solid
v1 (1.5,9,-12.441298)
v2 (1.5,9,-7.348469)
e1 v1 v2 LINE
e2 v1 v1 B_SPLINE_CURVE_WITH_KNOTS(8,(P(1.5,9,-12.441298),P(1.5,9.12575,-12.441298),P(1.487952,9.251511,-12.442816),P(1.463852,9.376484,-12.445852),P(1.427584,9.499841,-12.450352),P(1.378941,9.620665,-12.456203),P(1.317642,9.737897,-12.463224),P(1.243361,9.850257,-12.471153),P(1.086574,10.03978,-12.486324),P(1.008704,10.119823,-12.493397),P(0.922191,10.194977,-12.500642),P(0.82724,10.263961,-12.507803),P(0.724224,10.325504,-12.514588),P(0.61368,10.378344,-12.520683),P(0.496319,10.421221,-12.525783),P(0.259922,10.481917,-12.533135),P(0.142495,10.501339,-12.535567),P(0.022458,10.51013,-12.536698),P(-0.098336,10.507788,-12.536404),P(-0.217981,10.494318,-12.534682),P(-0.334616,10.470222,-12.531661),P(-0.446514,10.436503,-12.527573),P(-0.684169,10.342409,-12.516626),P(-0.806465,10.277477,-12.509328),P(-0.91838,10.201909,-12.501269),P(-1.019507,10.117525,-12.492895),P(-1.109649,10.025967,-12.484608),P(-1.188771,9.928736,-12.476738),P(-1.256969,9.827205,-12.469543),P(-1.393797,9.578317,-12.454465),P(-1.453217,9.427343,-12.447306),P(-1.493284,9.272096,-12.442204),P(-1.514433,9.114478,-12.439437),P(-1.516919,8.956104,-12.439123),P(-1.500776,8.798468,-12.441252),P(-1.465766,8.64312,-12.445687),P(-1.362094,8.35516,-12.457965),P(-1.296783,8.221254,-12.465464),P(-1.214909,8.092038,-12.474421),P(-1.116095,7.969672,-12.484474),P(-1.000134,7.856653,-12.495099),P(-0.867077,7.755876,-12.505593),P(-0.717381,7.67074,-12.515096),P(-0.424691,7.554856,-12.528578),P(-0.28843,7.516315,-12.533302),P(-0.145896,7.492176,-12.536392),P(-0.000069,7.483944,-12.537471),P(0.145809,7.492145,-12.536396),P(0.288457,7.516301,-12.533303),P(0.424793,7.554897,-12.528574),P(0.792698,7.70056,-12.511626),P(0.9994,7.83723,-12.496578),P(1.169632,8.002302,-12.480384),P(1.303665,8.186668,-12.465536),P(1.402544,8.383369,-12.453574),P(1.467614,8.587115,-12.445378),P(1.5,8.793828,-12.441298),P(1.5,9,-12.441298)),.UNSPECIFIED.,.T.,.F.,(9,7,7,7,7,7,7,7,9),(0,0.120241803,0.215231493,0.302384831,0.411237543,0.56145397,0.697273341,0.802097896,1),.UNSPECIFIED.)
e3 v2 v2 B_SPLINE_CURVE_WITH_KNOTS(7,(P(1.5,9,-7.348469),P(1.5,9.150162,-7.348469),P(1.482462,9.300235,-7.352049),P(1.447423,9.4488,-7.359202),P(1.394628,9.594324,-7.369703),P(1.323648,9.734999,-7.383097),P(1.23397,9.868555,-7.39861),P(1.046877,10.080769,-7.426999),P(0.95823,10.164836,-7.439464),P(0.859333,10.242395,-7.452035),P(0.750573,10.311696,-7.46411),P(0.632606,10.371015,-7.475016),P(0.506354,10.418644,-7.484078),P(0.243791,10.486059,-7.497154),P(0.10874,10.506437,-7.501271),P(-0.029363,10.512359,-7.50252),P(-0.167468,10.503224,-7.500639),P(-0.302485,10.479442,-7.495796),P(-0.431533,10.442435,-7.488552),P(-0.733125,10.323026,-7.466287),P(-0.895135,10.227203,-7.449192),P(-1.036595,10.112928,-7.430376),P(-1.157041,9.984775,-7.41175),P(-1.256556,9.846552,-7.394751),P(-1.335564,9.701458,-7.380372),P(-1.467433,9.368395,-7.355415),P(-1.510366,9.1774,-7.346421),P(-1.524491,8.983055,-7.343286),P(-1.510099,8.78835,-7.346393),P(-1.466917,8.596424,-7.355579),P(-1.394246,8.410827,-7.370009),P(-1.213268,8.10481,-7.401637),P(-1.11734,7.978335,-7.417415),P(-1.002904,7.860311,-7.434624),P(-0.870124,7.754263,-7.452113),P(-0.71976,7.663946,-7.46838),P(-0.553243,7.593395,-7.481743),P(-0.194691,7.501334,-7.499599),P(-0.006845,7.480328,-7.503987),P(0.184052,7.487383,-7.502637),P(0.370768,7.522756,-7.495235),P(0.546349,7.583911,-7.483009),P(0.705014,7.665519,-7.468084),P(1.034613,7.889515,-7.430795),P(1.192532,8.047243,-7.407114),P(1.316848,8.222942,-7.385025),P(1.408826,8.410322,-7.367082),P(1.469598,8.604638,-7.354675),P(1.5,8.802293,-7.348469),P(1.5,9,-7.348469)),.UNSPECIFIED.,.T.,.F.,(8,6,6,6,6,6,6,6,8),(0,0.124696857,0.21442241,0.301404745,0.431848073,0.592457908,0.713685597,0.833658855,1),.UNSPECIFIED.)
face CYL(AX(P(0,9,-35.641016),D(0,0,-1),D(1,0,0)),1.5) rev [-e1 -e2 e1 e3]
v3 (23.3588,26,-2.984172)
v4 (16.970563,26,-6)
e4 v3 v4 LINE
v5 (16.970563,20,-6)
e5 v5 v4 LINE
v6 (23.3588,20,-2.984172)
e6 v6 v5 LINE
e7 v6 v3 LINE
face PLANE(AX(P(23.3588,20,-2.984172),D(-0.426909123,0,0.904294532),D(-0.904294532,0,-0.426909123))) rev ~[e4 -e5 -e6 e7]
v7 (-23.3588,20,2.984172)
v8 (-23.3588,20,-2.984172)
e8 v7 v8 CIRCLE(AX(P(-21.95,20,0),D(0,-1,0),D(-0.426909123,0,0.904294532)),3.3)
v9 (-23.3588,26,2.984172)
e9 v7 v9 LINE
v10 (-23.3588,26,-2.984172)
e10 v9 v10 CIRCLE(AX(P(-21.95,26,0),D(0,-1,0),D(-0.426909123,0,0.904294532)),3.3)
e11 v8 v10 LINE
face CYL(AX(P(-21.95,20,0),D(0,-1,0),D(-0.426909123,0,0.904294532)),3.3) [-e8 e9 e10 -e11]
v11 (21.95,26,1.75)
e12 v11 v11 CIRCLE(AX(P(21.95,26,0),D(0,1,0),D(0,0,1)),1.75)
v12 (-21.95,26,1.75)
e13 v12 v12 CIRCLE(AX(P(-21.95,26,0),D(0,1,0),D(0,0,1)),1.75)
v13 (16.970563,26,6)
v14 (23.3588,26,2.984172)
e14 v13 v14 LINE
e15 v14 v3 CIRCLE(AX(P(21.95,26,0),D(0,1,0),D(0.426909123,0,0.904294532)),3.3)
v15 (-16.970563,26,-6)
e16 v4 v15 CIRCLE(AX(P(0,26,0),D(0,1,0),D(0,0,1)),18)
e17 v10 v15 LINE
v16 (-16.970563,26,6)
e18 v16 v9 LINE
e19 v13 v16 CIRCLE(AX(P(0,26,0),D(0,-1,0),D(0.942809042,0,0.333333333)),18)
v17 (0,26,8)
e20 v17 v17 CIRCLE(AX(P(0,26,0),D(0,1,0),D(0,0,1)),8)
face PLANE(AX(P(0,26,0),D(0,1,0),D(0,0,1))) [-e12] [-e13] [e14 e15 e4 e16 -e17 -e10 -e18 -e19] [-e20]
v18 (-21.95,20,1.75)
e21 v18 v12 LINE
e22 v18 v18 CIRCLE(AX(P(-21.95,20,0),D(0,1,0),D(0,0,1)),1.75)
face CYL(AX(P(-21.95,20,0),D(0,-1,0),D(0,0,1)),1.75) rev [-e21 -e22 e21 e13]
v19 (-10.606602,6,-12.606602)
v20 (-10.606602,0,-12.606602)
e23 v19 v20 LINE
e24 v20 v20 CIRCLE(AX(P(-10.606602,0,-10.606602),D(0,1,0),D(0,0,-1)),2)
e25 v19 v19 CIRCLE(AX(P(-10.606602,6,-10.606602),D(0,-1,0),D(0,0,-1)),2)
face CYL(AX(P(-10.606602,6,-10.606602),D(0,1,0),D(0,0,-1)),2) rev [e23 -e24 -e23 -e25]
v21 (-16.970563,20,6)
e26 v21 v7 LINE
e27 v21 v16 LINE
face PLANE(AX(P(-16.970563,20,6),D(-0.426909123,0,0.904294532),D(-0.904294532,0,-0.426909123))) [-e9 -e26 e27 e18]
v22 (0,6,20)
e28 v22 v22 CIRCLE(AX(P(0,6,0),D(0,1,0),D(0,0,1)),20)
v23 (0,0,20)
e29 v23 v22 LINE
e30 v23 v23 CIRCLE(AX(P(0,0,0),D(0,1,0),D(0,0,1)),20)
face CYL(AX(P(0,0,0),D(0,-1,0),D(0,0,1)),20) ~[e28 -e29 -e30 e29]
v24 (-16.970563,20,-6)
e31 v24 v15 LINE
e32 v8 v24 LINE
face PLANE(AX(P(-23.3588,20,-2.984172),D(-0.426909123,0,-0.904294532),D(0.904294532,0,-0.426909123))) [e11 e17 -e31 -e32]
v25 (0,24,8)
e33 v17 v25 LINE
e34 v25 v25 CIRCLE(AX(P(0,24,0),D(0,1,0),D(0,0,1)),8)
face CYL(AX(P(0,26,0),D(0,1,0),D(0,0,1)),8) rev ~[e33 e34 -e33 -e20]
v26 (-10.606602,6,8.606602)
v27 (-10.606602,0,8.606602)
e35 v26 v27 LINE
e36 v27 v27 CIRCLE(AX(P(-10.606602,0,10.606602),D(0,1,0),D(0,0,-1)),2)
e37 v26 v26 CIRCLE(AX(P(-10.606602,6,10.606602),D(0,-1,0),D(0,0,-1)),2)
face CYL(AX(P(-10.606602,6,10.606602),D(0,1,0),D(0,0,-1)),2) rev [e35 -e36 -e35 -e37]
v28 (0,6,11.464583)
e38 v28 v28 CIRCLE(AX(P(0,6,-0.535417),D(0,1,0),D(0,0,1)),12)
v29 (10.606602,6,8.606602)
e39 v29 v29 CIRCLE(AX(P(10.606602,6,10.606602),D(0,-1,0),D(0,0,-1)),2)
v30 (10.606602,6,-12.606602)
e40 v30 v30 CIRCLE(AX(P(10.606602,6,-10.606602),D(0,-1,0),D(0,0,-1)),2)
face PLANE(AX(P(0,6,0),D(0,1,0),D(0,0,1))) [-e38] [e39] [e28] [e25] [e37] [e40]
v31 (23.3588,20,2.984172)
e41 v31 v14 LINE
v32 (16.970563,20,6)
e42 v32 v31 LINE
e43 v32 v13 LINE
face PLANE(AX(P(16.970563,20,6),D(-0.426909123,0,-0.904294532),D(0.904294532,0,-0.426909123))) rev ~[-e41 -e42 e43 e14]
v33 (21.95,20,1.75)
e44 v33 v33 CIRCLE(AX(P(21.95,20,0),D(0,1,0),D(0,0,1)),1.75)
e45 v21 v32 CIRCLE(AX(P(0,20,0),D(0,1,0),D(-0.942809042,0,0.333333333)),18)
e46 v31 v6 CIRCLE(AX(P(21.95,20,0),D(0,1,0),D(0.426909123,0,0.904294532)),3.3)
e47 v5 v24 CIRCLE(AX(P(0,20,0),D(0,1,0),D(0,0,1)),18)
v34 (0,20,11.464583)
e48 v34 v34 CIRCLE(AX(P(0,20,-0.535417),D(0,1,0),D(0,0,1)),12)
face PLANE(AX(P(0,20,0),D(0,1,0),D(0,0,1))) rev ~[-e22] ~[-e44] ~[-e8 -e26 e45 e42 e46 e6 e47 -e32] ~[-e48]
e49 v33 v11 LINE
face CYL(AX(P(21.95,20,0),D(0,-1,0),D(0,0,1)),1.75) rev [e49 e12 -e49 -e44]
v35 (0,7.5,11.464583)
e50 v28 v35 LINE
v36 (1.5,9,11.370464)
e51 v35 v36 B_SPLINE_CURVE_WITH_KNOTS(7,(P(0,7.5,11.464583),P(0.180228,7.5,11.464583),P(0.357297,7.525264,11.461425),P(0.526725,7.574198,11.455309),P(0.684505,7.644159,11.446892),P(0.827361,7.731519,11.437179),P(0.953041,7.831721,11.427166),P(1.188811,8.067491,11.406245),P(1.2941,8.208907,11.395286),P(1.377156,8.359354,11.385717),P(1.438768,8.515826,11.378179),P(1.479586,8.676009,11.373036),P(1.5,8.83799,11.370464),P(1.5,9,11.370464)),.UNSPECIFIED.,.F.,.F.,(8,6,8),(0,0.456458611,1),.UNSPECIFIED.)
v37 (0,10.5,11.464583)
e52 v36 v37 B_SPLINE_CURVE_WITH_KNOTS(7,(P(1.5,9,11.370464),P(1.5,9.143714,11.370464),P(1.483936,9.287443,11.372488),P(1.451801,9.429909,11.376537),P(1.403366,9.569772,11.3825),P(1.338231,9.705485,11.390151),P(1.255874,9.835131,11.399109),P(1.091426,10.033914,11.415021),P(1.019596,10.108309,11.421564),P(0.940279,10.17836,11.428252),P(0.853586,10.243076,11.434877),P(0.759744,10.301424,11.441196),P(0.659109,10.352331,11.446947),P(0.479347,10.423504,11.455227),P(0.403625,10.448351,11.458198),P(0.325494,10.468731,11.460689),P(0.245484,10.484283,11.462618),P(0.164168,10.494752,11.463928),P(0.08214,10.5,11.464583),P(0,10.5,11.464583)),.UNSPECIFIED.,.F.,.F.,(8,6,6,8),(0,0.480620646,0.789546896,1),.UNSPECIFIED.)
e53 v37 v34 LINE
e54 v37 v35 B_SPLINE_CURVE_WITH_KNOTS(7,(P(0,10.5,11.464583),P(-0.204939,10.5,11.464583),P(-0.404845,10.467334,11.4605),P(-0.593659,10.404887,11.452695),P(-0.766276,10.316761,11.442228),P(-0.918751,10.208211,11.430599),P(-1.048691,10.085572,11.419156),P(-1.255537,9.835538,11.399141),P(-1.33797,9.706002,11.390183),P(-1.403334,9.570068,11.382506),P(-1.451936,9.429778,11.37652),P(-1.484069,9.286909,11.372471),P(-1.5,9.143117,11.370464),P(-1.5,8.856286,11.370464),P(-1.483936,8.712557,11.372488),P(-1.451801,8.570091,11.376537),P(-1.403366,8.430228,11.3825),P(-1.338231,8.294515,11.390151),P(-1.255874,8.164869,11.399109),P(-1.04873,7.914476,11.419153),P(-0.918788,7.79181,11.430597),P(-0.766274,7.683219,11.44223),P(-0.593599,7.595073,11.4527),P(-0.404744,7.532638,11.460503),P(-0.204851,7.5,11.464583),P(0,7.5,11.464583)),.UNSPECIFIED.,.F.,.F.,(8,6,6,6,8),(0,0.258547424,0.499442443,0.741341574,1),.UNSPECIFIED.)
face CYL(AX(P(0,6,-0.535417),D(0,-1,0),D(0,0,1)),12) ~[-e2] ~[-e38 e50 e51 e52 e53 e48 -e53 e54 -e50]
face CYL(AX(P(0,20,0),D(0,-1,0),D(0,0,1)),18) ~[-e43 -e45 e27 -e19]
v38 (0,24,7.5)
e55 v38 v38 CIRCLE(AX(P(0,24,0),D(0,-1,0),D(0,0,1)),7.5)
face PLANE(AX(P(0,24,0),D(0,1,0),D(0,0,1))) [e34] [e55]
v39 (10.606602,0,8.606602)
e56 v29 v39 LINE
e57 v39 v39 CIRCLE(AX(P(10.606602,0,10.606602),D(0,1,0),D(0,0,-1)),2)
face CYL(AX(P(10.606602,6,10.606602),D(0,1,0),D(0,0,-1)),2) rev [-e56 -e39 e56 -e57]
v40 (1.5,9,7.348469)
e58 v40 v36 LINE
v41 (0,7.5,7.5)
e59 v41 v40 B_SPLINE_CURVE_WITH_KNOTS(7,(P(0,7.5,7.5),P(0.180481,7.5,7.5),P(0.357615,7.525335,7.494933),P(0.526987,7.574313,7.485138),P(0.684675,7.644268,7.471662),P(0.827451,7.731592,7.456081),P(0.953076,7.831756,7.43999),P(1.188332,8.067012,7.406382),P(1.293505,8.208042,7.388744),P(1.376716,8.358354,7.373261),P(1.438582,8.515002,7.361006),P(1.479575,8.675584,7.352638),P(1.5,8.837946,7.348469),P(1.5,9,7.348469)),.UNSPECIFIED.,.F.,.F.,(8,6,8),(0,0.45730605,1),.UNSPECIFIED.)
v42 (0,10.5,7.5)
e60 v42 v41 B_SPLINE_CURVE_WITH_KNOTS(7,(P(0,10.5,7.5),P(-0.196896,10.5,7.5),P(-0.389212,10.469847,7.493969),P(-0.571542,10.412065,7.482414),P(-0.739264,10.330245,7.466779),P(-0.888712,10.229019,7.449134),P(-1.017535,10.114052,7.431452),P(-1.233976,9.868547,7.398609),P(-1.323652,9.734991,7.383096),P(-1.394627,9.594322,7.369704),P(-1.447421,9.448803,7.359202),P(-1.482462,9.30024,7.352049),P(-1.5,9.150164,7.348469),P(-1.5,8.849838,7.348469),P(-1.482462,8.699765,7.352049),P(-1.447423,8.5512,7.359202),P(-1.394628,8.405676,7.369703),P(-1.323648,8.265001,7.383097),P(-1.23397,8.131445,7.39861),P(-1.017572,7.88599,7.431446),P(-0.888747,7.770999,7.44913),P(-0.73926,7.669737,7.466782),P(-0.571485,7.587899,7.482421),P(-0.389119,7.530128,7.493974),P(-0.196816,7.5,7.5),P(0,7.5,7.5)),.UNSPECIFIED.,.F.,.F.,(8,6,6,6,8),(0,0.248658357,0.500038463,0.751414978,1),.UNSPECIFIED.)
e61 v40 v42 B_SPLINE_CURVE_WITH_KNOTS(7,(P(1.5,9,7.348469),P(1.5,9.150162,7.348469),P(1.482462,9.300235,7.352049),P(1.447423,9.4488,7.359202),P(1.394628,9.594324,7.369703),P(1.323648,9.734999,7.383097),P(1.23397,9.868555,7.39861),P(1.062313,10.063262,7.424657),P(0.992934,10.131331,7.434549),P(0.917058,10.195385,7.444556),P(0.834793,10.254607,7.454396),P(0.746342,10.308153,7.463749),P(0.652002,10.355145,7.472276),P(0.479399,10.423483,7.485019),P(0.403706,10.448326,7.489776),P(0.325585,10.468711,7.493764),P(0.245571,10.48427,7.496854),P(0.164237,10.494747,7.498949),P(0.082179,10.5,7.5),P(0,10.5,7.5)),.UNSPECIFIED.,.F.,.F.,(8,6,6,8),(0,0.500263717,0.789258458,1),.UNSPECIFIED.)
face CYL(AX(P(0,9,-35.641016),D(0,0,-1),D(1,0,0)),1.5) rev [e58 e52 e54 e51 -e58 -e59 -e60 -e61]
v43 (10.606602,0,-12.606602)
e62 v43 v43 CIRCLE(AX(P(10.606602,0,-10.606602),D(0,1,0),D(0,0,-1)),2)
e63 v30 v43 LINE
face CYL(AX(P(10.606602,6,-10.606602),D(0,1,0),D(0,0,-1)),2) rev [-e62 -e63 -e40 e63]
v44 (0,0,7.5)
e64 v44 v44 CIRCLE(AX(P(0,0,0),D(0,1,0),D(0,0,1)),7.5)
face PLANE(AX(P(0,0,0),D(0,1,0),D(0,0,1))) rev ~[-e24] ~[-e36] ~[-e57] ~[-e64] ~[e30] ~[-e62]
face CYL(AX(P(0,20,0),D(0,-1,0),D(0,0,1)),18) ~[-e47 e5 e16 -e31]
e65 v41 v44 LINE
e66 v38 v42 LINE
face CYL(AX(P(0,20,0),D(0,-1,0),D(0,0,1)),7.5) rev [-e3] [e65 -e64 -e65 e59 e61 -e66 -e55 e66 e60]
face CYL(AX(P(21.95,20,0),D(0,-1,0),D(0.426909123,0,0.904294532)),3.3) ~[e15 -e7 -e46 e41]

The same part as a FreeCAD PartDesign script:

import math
import FreeCAD as App
import Part
import Sketcher
from FreeCAD import Vector

doc = App.newDocument("Part")
body = doc.addObject("PartDesign::Body", "Body")

sketch1 = body.newObject("Sketcher::SketchObject", "Sketch")
sketch1.AttachmentSupport = (doc.getObject("XZ_Plane"), [""])
sketch1.MapMode = "FlatFace"
sketch1.addGeometry([
    Part.Circle(Vector(0, 0, 0), Vector(0, 0, 1), 20),
    Part.Circle(Vector(0, 0, 0), Vector(0, 0, 1), 7.5),
], False)
sketch1.addConstraint([
    Sketcher.Constraint("Coincident", 0, 3, -1, 1),
    Sketcher.Constraint("Coincident", 1, 3, -1, 1),
    Sketcher.Constraint("Diameter", 0, 40.0),
    Sketcher.Constraint("Diameter", 1, 15.0),
])
pad1 = body.newObject("PartDesign::Pad", "Pad")
pad1.Profile = sketch1
pad1.Length = 6
pad1.Reversed = True

sketch2 = body.newObject("Sketcher::SketchObject", "Sketch001")
sketch2.AttachmentSupport = (doc.getObject("XZ_Plane"), [""])
sketch2.MapMode = "FlatFace"
sketch2.AttachmentOffset = App.Placement(Vector(0, 0, -6), App.Rotation())
sketch2.addGeometry([
    Part.Circle(Vector(0, -0.535417, 0), Vector(0, 0, 1), 12),
    Part.Circle(Vector(0, 0, 0), Vector(0, 0, 1), 7.5),
], False)
sketch2.addConstraint([
    Sketcher.Constraint("Coincident", 1, 3, -1, 1),
    Sketcher.Constraint("PointOnObject", 0, 3, -2),
    Sketcher.Constraint("Diameter", 0, 24.0),
    Sketcher.Constraint("Diameter", 1, 15.0),
    Sketcher.Constraint("DistanceY", 0, 3, -1, 1, 0.535417),
])
pad2 = body.newObject("PartDesign::Pad", "Pad001")
pad2.Profile = sketch2
pad2.Length = 14
pad2.Reversed = True

sketch3 = body.newObject("Sketcher::SketchObject", "Sketch002")
sketch3.AttachmentSupport = (doc.getObject("XY_Plane"), [""])
sketch3.MapMode = "FlatFace"
sketch3.addGeometry(Part.Circle(Vector(0, 9, 0), Vector(0, 0, 1), 1.5), False)
sketch3.addConstraint([
    Sketcher.Constraint("PointOnObject", 0, 3, -2),
    Sketcher.Constraint("Diameter", 0, 3.0),
    Sketcher.Constraint("DistanceY", -1, 1, 0, 3, 9.0),
])
pocket1 = body.newObject("PartDesign::Pocket", "Pocket")
pocket1.Profile = sketch3
pocket1.Type = "ThroughAll"
pocket1.Midplane = True

sketch4 = body.newObject("Sketcher::SketchObject", "Sketch003")
sketch4.AttachmentSupport = (doc.getObject("XZ_Plane"), [""])
sketch4.MapMode = "FlatFace"
sketch4.AttachmentOffset = App.Placement(Vector(0, 0, -20), App.Rotation())
sketch4.addGeometry([
    Part.Circle(Vector(0, 0, 0), Vector(0, 0, 1), 18),
    Part.Circle(Vector(0, 0, 0), Vector(0, 0, 1), 7.5),
], False)
sketch4.addConstraint([
    Sketcher.Constraint("Coincident", 0, 3, -1, 1),
    Sketcher.Constraint("Coincident", 1, 3, -1, 1),
    Sketcher.Constraint("Diameter", 0, 36.0),
    Sketcher.Constraint("Diameter", 1, 15.0),
])
pad3 = body.newObject("PartDesign::Pad", "Pad002")
pad3.Profile = sketch4
pad3.Length = 6
pad3.Reversed = True

sketch5 = body.newObject("Sketcher::SketchObject", "Sketch004")
sketch5.AttachmentSupport = (doc.getObject("XZ_Plane"), [""])
sketch5.MapMode = "FlatFace"
sketch5.AttachmentOffset = App.Placement(Vector(0, 0, -20), App.Rotation())
sketch5.addGeometry([
    Part.LineSegment(Vector(-16.970563, -6, 0), Vector(-23.3588, -2.984172, 0)),
    Part.ArcOfCircle(Part.Circle(Vector(-21.95, 0, 0), Vector(0, 0, 1), 3.3), math.radians(115.271565), math.radians(244.728435)),
    Part.LineSegment(Vector(-23.3588, 2.984172, 0), Vector(-16.970563, 6, 0)),
    Part.ArcOfCircle(Part.Circle(Vector(0, 0, 0), Vector(0, 0, 1), 18), math.radians(160.528779), math.radians(199.471221)),
    Part.Circle(Vector(-21.95, 0, 0), Vector(0, 0, 1), 1.75),
    Part.LineSegment(Vector(23.3588, -2.984172, 0), Vector(16.970563, -6, 0)),
    Part.ArcOfCircle(Part.Circle(Vector(0, 0, 0), Vector(0, 0, 1), 18), math.radians(-19.471221), math.radians(19.471221)),
    Part.LineSegment(Vector(16.970563, 6, 0), Vector(23.3588, 2.984172, 0)),
    Part.ArcOfCircle(Part.Circle(Vector(21.95, 0, 0), Vector(0, 0, 1), 3.3), math.radians(-64.728435), math.radians(64.728435)),
    Part.Circle(Vector(21.95, 0, 0), Vector(0, 0, 1), 1.75),
], False)
sketch5.addConstraint([
    Sketcher.Constraint("Tangent", 0, 2, 1, 2),
    Sketcher.Constraint("Tangent", 1, 1, 2, 1),
    Sketcher.Constraint("Coincident", 2, 2, 3, 1),
    Sketcher.Constraint("Coincident", 3, 2, 0, 1),
    Sketcher.Constraint("Coincident", 5, 2, 6, 1),
    Sketcher.Constraint("Coincident", 6, 2, 7, 1),
    Sketcher.Constraint("Tangent", 7, 2, 8, 2),
    Sketcher.Constraint("Tangent", 8, 1, 5, 1),
    Sketcher.Constraint("Coincident", 3, 3, -1, 1),
    Sketcher.Constraint("Coincident", 6, 3, -1, 1),
    Sketcher.Constraint("Coincident", 4, 3, 1, 3),
    Sketcher.Constraint("Coincident", 9, 3, 8, 3),
    Sketcher.Constraint("Equal", 3, 6),
    Sketcher.Constraint("Equal", 1, 8),
    Sketcher.Constraint("Equal", 4, 9),
    Sketcher.Constraint("Symmetric", 1, 3, 8, 3, -1, 1),
    Sketcher.Constraint("Symmetric", 1, 1, 7, 2, -2),
    Sketcher.Constraint("Parallel", 2, 5),
    Sketcher.Constraint("Parallel", 0, 7),
    Sketcher.Constraint("Radius", 3, 18.0),
    Sketcher.Constraint("Diameter", 4, 3.5),
    Sketcher.Constraint("Radius", 1, 3.3),
    Sketcher.Constraint("DistanceY", -1, 1, 2, 2, 6.0),
    Sketcher.Constraint("DistanceX", 1, 3, 8, 3, 43.9),
])
pad4 = body.newObject("PartDesign::Pad", "Pad003")
pad4.Profile = sketch5
pad4.Length = 6
pad4.Reversed = True

sketch6 = body.newObject("Sketcher::SketchObject", "Sketch005")
sketch6.AttachmentSupport = (doc.getObject("XZ_Plane"), [""])
sketch6.MapMode = "FlatFace"
sketch6.addGeometry([
    Part.Circle(Vector(-10.606602, 10.606602, 0), Vector(0, 0, 1), 2),
    Part.Circle(Vector(10.606602, 10.606602, 0), Vector(0, 0, 1), 2),
    Part.Circle(Vector(10.606602, -10.606602, 0), Vector(0, 0, 1), 2),
    Part.Circle(Vector(-10.606602, -10.606602, 0), Vector(0, 0, 1), 2),
], False)
sketch6.addConstraint([
    Sketcher.Constraint("Equal", 0, 1),
    Sketcher.Constraint("Equal", 1, 2),
    Sketcher.Constraint("Equal", 2, 3),
    Sketcher.Constraint("Symmetric", 0, 3, 2, 3, -1, 1),
    Sketcher.Constraint("Symmetric", 1, 3, 3, 3, -1, 1),
    Sketcher.Constraint("Symmetric", 0, 3, 1, 3, -2),
    Sketcher.Constraint("Diameter", 0, 4.0),
    Sketcher.Constraint("DistanceX", 0, 3, -1, 1, 10.606602),
    Sketcher.Constraint("DistanceY", -1, 1, 0, 3, 10.606602),
])
pocket2 = body.newObject("PartDesign::Pocket", "Pocket001")
pocket2.Profile = sketch6
pocket2.Type = "TwoLengths"
pocket2.Length = 42.395199
pocket2.Length2 = 6
pocket2.Reversed = True

sketch7 = body.newObject("Sketcher::SketchObject", "Sketch006")
sketch7.AttachmentSupport = (doc.getObject("XZ_Plane"), [""])
sketch7.MapMode = "FlatFace"
sketch7.AttachmentOffset = App.Placement(Vector(0, 0, -26), App.Rotation())
sketch7.addGeometry(Part.Circle(Vector(0, 0, 0), Vector(0, 0, 1), 8), False)
sketch7.addConstraint([
    Sketcher.Constraint("Coincident", 0, 3, -1, 1),
    Sketcher.Constraint("Diameter", 0, 16.0),
])
pocket3 = body.newObject("PartDesign::Pocket", "Pocket002")
pocket3.Profile = sketch7
pocket3.Length = 2
pocket3.Reversed = True

doc.recompute()
